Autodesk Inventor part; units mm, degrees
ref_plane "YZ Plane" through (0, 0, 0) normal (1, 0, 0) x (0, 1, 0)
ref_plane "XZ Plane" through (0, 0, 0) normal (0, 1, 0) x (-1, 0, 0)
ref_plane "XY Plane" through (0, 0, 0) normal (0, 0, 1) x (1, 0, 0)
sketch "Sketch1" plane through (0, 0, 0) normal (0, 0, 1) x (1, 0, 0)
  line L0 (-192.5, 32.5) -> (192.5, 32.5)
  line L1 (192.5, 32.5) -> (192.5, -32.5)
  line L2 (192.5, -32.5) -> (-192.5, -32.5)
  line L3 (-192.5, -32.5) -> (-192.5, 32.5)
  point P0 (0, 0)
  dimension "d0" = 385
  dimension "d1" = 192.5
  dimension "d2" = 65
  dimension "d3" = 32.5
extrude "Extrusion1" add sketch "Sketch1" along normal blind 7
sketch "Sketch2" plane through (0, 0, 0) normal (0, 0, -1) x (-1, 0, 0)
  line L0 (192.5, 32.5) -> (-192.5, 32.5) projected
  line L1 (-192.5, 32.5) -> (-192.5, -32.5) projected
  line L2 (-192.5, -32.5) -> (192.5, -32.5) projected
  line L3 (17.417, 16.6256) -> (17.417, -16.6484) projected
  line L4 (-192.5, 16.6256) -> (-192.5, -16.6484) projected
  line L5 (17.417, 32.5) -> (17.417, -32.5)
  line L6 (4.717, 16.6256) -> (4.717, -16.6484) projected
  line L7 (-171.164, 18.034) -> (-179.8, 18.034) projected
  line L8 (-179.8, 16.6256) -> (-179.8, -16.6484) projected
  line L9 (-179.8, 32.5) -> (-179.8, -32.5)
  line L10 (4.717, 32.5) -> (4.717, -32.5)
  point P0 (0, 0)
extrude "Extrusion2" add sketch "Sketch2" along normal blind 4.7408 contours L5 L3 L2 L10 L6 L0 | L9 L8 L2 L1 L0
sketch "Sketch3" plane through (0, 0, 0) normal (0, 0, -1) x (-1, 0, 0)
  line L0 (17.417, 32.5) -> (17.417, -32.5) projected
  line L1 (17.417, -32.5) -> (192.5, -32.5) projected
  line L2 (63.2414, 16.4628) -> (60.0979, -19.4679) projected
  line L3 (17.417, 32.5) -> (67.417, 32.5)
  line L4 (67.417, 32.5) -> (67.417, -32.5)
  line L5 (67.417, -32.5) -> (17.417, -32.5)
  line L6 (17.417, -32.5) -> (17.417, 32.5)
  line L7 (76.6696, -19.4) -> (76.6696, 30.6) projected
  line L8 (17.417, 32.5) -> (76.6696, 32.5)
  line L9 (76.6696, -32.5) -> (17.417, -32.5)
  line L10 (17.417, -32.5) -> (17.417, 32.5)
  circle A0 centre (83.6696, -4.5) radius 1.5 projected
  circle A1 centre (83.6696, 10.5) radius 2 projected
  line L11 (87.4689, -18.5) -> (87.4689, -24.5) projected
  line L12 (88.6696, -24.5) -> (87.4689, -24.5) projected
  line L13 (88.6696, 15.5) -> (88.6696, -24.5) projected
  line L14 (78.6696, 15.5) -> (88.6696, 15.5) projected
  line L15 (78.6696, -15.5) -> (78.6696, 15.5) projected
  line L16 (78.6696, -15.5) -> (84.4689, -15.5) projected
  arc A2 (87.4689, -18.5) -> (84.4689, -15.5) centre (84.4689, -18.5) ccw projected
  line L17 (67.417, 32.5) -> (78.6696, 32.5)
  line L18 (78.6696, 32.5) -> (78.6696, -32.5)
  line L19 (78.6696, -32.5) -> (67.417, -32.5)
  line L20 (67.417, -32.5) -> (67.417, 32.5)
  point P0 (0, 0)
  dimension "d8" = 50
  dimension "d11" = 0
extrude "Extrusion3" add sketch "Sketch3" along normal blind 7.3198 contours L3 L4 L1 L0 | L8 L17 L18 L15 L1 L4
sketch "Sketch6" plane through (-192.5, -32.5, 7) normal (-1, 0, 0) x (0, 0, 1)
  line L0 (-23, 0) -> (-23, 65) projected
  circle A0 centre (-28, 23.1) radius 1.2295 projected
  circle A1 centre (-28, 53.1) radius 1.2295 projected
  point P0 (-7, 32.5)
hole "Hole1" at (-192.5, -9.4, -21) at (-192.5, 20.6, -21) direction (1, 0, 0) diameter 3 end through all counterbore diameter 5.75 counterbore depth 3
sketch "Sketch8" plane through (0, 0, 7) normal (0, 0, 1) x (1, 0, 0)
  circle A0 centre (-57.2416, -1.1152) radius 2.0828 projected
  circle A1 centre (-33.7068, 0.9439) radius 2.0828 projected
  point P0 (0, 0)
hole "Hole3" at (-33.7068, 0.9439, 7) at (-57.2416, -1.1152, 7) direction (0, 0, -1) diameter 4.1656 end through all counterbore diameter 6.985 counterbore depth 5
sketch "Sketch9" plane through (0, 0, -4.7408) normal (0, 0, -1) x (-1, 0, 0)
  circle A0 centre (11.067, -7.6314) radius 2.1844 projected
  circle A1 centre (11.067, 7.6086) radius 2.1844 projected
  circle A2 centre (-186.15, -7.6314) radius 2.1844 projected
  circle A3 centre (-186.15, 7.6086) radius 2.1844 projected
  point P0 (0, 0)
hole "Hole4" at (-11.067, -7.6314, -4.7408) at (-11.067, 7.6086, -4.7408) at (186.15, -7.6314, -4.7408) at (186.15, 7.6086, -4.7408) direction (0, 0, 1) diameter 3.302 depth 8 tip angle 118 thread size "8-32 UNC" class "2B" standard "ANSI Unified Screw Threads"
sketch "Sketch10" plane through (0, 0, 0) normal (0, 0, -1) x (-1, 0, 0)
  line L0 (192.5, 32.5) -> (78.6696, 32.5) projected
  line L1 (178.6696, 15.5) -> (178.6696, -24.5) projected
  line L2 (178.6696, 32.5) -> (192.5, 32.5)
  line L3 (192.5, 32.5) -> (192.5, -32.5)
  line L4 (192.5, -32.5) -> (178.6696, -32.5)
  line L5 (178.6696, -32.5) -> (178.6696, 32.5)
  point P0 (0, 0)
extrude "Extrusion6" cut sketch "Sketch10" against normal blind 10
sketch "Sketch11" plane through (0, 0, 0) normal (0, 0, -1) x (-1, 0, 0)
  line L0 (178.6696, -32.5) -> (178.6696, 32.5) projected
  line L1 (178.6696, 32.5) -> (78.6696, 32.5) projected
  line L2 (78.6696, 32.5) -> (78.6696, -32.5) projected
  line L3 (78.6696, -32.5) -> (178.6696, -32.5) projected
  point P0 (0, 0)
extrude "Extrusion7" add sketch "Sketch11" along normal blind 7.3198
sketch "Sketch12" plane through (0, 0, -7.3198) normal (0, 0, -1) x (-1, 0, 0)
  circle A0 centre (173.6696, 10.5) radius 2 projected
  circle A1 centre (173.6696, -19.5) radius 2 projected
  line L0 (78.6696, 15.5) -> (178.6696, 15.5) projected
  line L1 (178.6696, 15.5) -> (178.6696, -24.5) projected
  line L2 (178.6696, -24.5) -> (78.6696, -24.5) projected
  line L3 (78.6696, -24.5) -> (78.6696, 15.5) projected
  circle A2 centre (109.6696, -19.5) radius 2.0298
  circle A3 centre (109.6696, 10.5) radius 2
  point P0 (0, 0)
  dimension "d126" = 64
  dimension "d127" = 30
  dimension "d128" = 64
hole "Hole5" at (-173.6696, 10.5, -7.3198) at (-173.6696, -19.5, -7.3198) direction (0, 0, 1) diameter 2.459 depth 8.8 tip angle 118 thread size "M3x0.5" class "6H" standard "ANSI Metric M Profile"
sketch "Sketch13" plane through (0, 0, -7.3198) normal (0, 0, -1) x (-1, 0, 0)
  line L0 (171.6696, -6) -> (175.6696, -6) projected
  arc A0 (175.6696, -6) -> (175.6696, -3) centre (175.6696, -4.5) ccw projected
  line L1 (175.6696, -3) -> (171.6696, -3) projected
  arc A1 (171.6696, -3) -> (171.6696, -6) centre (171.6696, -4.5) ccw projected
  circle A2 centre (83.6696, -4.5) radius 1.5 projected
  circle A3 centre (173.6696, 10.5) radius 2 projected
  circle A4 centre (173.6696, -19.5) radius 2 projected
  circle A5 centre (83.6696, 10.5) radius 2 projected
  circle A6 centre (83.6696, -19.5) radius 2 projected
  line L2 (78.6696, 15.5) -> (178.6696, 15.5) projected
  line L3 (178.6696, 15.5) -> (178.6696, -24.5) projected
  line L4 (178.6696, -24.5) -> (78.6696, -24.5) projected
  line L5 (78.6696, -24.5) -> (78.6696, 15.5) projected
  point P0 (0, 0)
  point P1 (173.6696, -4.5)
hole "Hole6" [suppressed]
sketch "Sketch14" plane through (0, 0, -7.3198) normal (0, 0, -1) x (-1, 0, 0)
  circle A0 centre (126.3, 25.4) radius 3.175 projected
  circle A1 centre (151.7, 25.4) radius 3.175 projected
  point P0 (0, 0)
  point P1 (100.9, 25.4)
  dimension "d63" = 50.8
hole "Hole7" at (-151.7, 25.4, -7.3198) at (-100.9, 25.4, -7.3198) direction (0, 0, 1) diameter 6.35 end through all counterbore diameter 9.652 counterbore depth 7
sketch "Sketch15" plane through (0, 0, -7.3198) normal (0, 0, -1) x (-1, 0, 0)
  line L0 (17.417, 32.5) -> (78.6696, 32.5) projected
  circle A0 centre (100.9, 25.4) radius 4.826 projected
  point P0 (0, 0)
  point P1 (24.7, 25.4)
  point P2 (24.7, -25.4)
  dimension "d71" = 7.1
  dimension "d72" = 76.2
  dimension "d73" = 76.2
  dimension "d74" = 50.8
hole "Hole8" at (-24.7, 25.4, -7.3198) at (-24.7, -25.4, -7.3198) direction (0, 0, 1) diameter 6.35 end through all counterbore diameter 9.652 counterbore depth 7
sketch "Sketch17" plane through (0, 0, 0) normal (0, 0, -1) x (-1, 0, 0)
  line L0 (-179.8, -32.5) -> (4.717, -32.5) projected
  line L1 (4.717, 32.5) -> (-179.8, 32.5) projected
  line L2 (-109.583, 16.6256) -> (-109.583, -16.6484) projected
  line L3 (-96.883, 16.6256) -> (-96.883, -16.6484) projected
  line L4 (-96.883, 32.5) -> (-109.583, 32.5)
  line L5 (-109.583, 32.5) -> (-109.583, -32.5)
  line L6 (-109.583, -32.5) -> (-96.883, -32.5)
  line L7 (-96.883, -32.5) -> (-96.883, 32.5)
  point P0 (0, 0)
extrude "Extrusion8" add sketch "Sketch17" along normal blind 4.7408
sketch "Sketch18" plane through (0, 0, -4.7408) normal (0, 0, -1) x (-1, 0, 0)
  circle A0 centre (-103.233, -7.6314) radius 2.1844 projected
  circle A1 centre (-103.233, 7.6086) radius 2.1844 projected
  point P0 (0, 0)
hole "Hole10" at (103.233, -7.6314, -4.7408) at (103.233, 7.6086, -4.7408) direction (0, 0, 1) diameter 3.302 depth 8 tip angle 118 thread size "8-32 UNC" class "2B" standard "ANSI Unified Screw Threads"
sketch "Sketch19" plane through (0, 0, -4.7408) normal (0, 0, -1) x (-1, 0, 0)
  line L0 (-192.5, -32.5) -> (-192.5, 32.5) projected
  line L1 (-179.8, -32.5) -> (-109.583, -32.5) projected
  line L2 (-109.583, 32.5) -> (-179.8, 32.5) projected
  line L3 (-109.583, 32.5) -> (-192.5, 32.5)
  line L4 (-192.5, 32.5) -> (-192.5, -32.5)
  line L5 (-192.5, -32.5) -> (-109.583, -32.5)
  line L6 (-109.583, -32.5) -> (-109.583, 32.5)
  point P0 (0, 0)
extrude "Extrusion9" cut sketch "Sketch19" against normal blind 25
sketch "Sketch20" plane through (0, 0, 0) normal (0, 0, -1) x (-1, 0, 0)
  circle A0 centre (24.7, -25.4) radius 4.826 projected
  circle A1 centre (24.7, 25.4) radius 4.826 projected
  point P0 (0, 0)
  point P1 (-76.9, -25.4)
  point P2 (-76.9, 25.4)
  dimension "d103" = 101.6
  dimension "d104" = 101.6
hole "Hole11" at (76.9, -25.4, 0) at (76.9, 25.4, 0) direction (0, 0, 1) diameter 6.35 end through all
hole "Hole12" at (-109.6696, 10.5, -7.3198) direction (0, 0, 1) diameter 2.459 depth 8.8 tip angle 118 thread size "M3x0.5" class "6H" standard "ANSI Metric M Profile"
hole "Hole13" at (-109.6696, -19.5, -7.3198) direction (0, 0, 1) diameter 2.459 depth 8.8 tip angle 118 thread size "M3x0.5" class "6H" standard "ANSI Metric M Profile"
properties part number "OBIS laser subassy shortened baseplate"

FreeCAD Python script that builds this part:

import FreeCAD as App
import Part
import Sketcher

doc = App.newDocument("Part")
params = doc.addObject("Spreadsheet::Sheet", "Params")
for row, (alias, value) in enumerate([
    ("sketch1_width", "385 mm"),
    ("sketch1_height", "65 mm"),
    ("pad1_length", "7 mm"),
    ("sketch2_height", "65 mm"),
    ("sketch2_width", "12.7 mm"),
    ("pad2_length", "4.7408 mm"),
    ("sketch3_height", "65 mm"),
    ("pad3_length", "7.3198 mm"),
    ("sketch4_diameter", "3 mm"),
    ("hole_diameter", "3 mm"),
    ("hole_cbore_diameter", "5.75 mm"),
    ("hole_cbore_depth", "3 mm"),
    ("hole2_diameter", "4.1656 mm"),
    ("hole2_cbore_diameter", "6.985 mm"),
    ("hole2_cbore_depth", "5 mm"),
    ("hole3_diameter", "3.302 mm"),
    ("hole3_depth", "8 mm"),
    ("sketch7_height", "65 mm"),
    ("pocket1_length", "10 mm"),
    ("sketch8_width", "100 mm"),
    ("sketch8_height", "65 mm"),
    ("pad4_length", "7.3198 mm"),
    ("hole4_diameter", "2.459 mm"),
    ("hole4_depth", "8.8 mm"),
    ("sketch10_diameter", "6.35 mm"),
    ("hole5_diameter", "6.35 mm"),
    ("hole5_cbore_diameter", "9.652 mm"),
    ("hole5_cbore_depth", "7 mm"),
    ("sketch11_diameter", "6.35 mm"),
    ("hole6_diameter", "6.35 mm"),
    ("hole6_cbore_diameter", "9.652 mm"),
    ("hole6_cbore_depth", "7 mm"),
    ("sketch12_height", "65 mm"),
    ("sketch12_width", "12.7 mm"),
    ("pad5_length", "4.7408 mm"),
    ("hole7_diameter", "3.302 mm"),
    ("hole7_depth", "8 mm"),
    ("sketch14_height", "65 mm"),
    ("pocket2_length", "25 mm"),
    ("sketch15_diameter", "6.35 mm"),
    ("hole8_diameter", "6.35 mm"),
    ("hole9_diameter", "2.459 mm"),
    ("hole9_depth", "8.8 mm"),
    ("hole10_diameter", "2.459 mm"),
    ("hole10_depth", "8.8 mm"),
], start=1):
    params.set(f"A{row}", alias)
    params.set(f"B{row}", "=" + value)
    params.setAlias(f"B{row}", alias)

body = doc.addObject("PartDesign::Body", "Body")

# Sketch on XY plane
sketch1 = body.newObject("Sketcher::SketchObject", "Sketch")
sketch1.AttachmentSupport = (doc.getObject("XY_Plane"), [""])
sketch1.MapMode = "FlatFace"
sketch1.addGeometry([
    Part.LineSegment(App.Vector(192, 32, 0), App.Vector(-192, 32, 0)),
    Part.LineSegment(App.Vector(-192, 32, 0), App.Vector(-192, -32, 0)),
    Part.LineSegment(App.Vector(-192, -32, 0), App.Vector(192, -32, 0)),
    Part.LineSegment(App.Vector(192, -32, 0), App.Vector(192, 32, 0)),
], False)
sketch1.addConstraint([
    Sketcher.Constraint("Coincident", 0, 2, 1, 1),
    Sketcher.Constraint("Coincident", 1, 2, 2, 1),
    Sketcher.Constraint("Coincident", 2, 2, 3, 1),
    Sketcher.Constraint("Coincident", 3, 2, 0, 1),
    Sketcher.Constraint("Horizontal", 0),
    Sketcher.Constraint("Vertical", 1),
    Sketcher.Constraint("Horizontal", 2),
    Sketcher.Constraint("Vertical", 3),
    Sketcher.Constraint("Symmetric", 0, 2, 2, 2, -1, 1),
    Sketcher.Constraint("DistanceX", 0, 2, 0, 1, 385.0),
    Sketcher.Constraint("DistanceY", 1, 2, 1, 1, 65.0),
])
sketch1.setExpression("Constraints[9]", "Params.sketch1_width")
sketch1.setExpression("Constraints[10]", "Params.sketch1_height")
pad1 = body.newObject("PartDesign::Pad", "Pad")
pad1.Profile = sketch1
pad1.setExpression("Length", "Params.pad1_length")

# Sketch on XY plane
sketch2 = body.newObject("Sketcher::SketchObject", "Sketch001")
sketch2.AttachmentSupport = (doc.getObject("XY_Plane"), [""])
sketch2.MapMode = "FlatFace"
sketch2.addGeometry([
    Part.LineSegment(App.Vector(-17, -32, 0), App.Vector(-17, 32, 0)),  # 0
    Part.LineSegment(App.Vector(-17, 32, 0), App.Vector(-5, 32, 0)),  # 1
    Part.LineSegment(App.Vector(-5, 32, 0), App.Vector(-5, -32, 0)),  # 2
    Part.LineSegment(App.Vector(-5, -32, 0), App.Vector(-17, -32, 0)),  # 3
    Part.LineSegment(App.Vector(180, -32, 0), App.Vector(180, 32, 0)),  # 4
    Part.LineSegment(App.Vector(180, 32, 0), App.Vector(192, 32, 0)),  # 5
    Part.LineSegment(App.Vector(192, 32, 0), App.Vector(192, -32, 0)),  # 6
    Part.LineSegment(App.Vector(192, -32, 0), App.Vector(180, -32, 0)),  # 7
], False)
sketch2.addConstraint([
    Sketcher.Constraint("Coincident", 0, 2, 1, 1),
    Sketcher.Constraint("Coincident", 1, 2, 2, 1),
    Sketcher.Constraint("Coincident", 2, 2, 3, 1),
    Sketcher.Constraint("Coincident", 3, 2, 0, 1),
    Sketcher.Constraint("Coincident", 4, 2, 5, 1),
    Sketcher.Constraint("Coincident", 5, 2, 6, 1),
    Sketcher.Constraint("Coincident", 6, 2, 7, 1),
    Sketcher.Constraint("Coincident", 7, 2, 4, 1),
    Sketcher.Constraint("Vertical", 0),
    Sketcher.Constraint("Horizontal", 1),
    Sketcher.Constraint("Vertical", 2),
    Sketcher.Constraint("Horizontal", 3),
    Sketcher.Constraint("Vertical", 4),
    Sketcher.Constraint("Horizontal", 5),
    Sketcher.Constraint("Vertical", 6),
    Sketcher.Constraint("Horizontal", 7),
    Sketcher.Constraint("Horizontal", 1, 2, 4, 2),
    Sketcher.Constraint("Horizontal", 3, 2, 6, 2),
    Sketcher.Constraint("Equal", 3, 5),
    Sketcher.Constraint("DistanceY", 0, 1, 0, 2, 65.0),
    Sketcher.Constraint("DistanceX", 1, 1, 1, 2, 12.7),
    Sketcher.Constraint("DistanceY", -1, 1, 0, 2, 32.5),
    Sketcher.Constraint("DistanceX", -1, 1, 4, 2, 179.8),
    Sketcher.Constraint("DistanceX", 0, 2, -1, 1, 17.417),
])
sketch2.setExpression("Constraints[19]", "Params.sketch2_height")
sketch2.setExpression("Constraints[20]", "Params.sketch2_width")
pad2 = body.newObject("PartDesign::Pad", "Pad001")
pad2.Profile = sketch2
pad2.setExpression("Length", "Params.pad2_length")
pad2.Reversed = True

# Sketch on XY plane
sketch3 = body.newObject("Sketcher::SketchObject", "Sketch002")
sketch3.AttachmentSupport = (doc.getObject("XY_Plane"), [""])
sketch3.MapMode = "FlatFace"
sketch3.addGeometry([
    Part.LineSegment(App.Vector(-17, 32, 0), App.Vector(-17, -32, 0)),
    Part.LineSegment(App.Vector(-17, -32, 0), App.Vector(-79, -32, 0)),
    Part.LineSegment(App.Vector(-79, -32, 0), App.Vector(-79, 32, 0)),
    Part.LineSegment(App.Vector(-79, 32, 0), App.Vector(-17, 32, 0)),
], False)
sketch3.addConstraint([
    Sketcher.Constraint("Coincident", 0, 2, 1, 1),
    Sketcher.Constraint("Coincident", 1, 2, 2, 1),
    Sketcher.Constraint("Coincident", 2, 2, 3, 1),
    Sketcher.Constraint("Coincident", 3, 2, 0, 1),
    Sketcher.Constraint("Vertical", 0),
    Sketcher.Constraint("Horizontal", 1),
    Sketcher.Constraint("Vertical", 2),
    Sketcher.Constraint("Horizontal", 3),
    Sketcher.Constraint("DistanceY", 0, 2, 0, 1, 65.0),
    Sketcher.Constraint("DistanceY", 0, 2, -1, 1, 32.5),
    Sketcher.Constraint("DistanceX", 1, 2, 1, 1, 61.2526),
    Sketcher.Constraint("DistanceX", 0, 2, -1, 1, 17.417),
])
sketch3.setExpression("Constraints[8]", "Params.sketch3_height")
pad3 = body.newObject("PartDesign::Pad", "Pad002")
pad3.Profile = sketch3
pad3.setExpression("Length", "Params.pad3_length")
pad3.Reversed = True

# Sketch on YZ plane
sketch4 = body.newObject("Sketcher::SketchObject", "Sketch003")
sketch4.AttachmentSupport = (doc.getObject("YZ_Plane"), [""])
sketch4.MapMode = "FlatFace"
sketch4.AttachmentOffset = App.Placement(App.Vector(0, 0, -192.5), App.Rotation())
sketch4.addGeometry([
    Part.Circle(App.Vector(-9.4, -21, 0), App.Vector(0, 0, 1), 1.5),
    Part.Circle(App.Vector(20.6, -21, 0), App.Vector(0, 0, 1), 1.5),
], False)
sketch4.addConstraint([
    Sketcher.Constraint("Equal", 0, 1),
    Sketcher.Constraint("Horizontal", 0, 3, 1, 3),
    Sketcher.Constraint("Diameter", 0, 3.0),
    Sketcher.Constraint("DistanceY", 0, 3, -1, 1, 21.0),
    Sketcher.Constraint("DistanceX", 0, 3, 1, 3, 30.0),
    Sketcher.Constraint("DistanceX", 0, 3, -1, 1, 9.4),
])
sketch4.setExpression("Constraints[2]", "Params.sketch4_diameter")
doc.recompute()
hole = body.newObject("PartDesign::Hole", "Hole")
hole.Profile = sketch4
hole.ThreadType = "None"
hole.setExpression("Diameter", "Params.hole_diameter")
hole.DepthType = "ThroughAll"
hole.HoleCutType = "Counterbore"
hole.setExpression("HoleCutDiameter", "Params.hole_cbore_diameter")
hole.setExpression("HoleCutDepth", "Params.hole_cbore_depth")
hole.Reversed = True

# Sketch on XY plane
sketch5 = body.newObject("Sketcher::SketchObject", "Sketch004")
sketch5.AttachmentSupport = (doc.getObject("XY_Plane"), [""])
sketch5.MapMode = "FlatFace"
sketch5.AttachmentOffset = App.Placement(App.Vector(0, 0, 7), App.Rotation())
sketch5.addGeometry([
    Part.Circle(App.Vector(-33.7, 0.9, 0), App.Vector(0, 0, 1), 2.1),
    Part.Circle(App.Vector(-57.2, -1.1, 0), App.Vector(0, 0, 1), 2.1),
], False)
sketch5.addConstraint([
    Sketcher.Constraint("Equal", 0, 1),
    Sketcher.Constraint("Diameter", 0, 4.1656),
    Sketcher.Constraint("DistanceY", -1, 1, 0, 3, 0.944),
    Sketcher.Constraint("DistanceY", 1, 3, 0, 3, 2.059),
    Sketcher.Constraint("DistanceX", 0, 3, -1, 1, 33.7068),
    Sketcher.Constraint("DistanceX", 1, 3, -1, 1, 57.2416),
])
doc.recompute()
hole2 = body.newObject("PartDesign::Hole", "Hole001")
hole2.Profile = sketch5
hole2.ThreadType = "None"
hole2.setExpression("Diameter", "Params.hole2_diameter")
hole2.DepthType = "ThroughAll"
hole2.HoleCutType = "Counterbore"
hole2.setExpression("HoleCutDiameter", "Params.hole2_cbore_diameter")
hole2.setExpression("HoleCutDepth", "Params.hole2_cbore_depth")

# Sketch on XY plane
sketch6 = body.newObject("Sketcher::SketchObject", "Sketch005")
sketch6.AttachmentSupport = (doc.getObject("XY_Plane"), [""])
sketch6.MapMode = "FlatFace"
sketch6.AttachmentOffset = App.Placement(App.Vector(0, 0, -4.7408), App.Rotation())
sketch6.addGeometry([
    Part.Circle(App.Vector(-11.1, -7.6, 0), App.Vector(0, 0, 1), 1.7),
    Part.Circle(App.Vector(-11.1, 7.6, 0), App.Vector(0, 0, 1), 1.7),
    Part.Circle(App.Vector(186.2, -7.6, 0), App.Vector(0, 0, 1), 1.7),
    Part.Circle(App.Vector(186.2, 7.6, 0), App.Vector(0, 0, 1), 1.7),
], False)
sketch6.addConstraint([
    Sketcher.Constraint("Equal", 0, 1),
    Sketcher.Constraint("Equal", 1, 2),
    Sketcher.Constraint("Equal", 2, 3),
    Sketcher.Constraint("Horizontal", 0, 3, 2, 3),
    Sketcher.Constraint("Horizontal", 1, 3, 3, 3),
    Sketcher.Constraint("Vertical", 0, 3, 1, 3),
    Sketcher.Constraint("Vertical", 2, 3, 3, 3),
    Sketcher.Constraint("Diameter", 0, 3.302),
    Sketcher.Constraint("DistanceX", -1, 1, 2, 3, 186.15),
    Sketcher.Constraint("DistanceY", 0, 3, 1, 3, 15.24),
    Sketcher.Constraint("DistanceX", 0, 3, -1, 1, 11.067),
    Sketcher.Constraint("DistanceY", 0, 3, -1, 1, 7.6314),
])
doc.recompute()
hole3 = body.newObject("PartDesign::Hole", "Hole002")
hole3.Profile = sketch6
hole3.ThreadType = "None"
hole3.setExpression("Diameter", "Params.hole3_diameter")
hole3.DepthType = "Dimension"
hole3.setExpression("Depth", "Params.hole3_depth")
hole3.DrillPoint = "Angled"
hole3.DrillPointAngle = 118
hole3.Reversed = True

# Sketch on XY plane
sketch7 = body.newObject("Sketcher::SketchObject", "Sketch006")
sketch7.AttachmentSupport = (doc.getObject("XY_Plane"), [""])
sketch7.MapMode = "FlatFace"
sketch7.addGeometry([
    Part.LineSegment(App.Vector(-192, -32, 0), App.Vector(-192, 32, 0)),
    Part.LineSegment(App.Vector(-192, 32, 0), App.Vector(-179, 32, 0)),
    Part.LineSegment(App.Vector(-179, 32, 0), App.Vector(-179, -32, 0)),
    Part.LineSegment(App.Vector(-179, -32, 0), App.Vector(-192, -32, 0)),
], False)
sketch7.addConstraint([
    Sketcher.Constraint("Coincident", 0, 2, 1, 1),
    Sketcher.Constraint("Coincident", 1, 2, 2, 1),
    Sketcher.Constraint("Coincident", 2, 2, 3, 1),
    Sketcher.Constraint("Coincident", 3, 2, 0, 1),
    Sketcher.Constraint("Vertical", 0),
    Sketcher.Constraint("Horizontal", 1),
    Sketcher.Constraint("Vertical", 2),
    Sketcher.Constraint("Horizontal", 3),
    Sketcher.Constraint("DistanceY", 0, 1, 0, 2, 65.0),
    Sketcher.Constraint("DistanceX", 0, 2, -1, 1, 192.5),
    Sketcher.Constraint("DistanceY", -1, 1, 0, 2, 32.5),
    Sketcher.Constraint("DistanceX", 1, 1, 1, 2, 13.8304),
])
sketch7.setExpression("Constraints[8]", "Params.sketch7_height")
pocket1 = body.newObject("PartDesign::Pocket", "Pocket")
pocket1.Profile = sketch7
pocket1.setExpression("Length", "Params.pocket1_length")
pocket1.Reversed = True

# Sketch on XY plane
sketch8 = body.newObject("Sketcher::SketchObject", "Sketch007")
sketch8.AttachmentSupport = (doc.getObject("XY_Plane"), [""])
sketch8.MapMode = "FlatFace"
sketch8.addGeometry([
    Part.LineSegment(App.Vector(-79, -32, 0), App.Vector(-179, -32, 0)),
    Part.LineSegment(App.Vector(-179, -32, 0), App.Vector(-179, 32, 0)),
    Part.LineSegment(App.Vector(-179, 32, 0), App.Vector(-79, 32, 0)),
    Part.LineSegment(App.Vector(-79, 32, 0), App.Vector(-79, -32, 0)),
], False)
sketch8.addConstraint([
    Sketcher.Constraint("Coincident", 0, 2, 1, 1),
    Sketcher.Constraint("Coincident", 1, 2, 2, 1),
    Sketcher.Constraint("Coincident", 2, 2, 3, 1),
    Sketcher.Constraint("Coincident", 3, 2, 0, 1),
    Sketcher.Constraint("Horizontal", 0),
    Sketcher.Constraint("Vertical", 1),
    Sketcher.Constraint("Horizontal", 2),
    Sketcher.Constraint("Vertical", 3),
    Sketcher.Constraint("DistanceX", 0, 2, 0, 1, 100.0),
    Sketcher.Constraint("DistanceY", 1, 1, 1, 2, 65.0),
    Sketcher.Constraint("DistanceY", 0, 2, -1, 1, 32.5),
    Sketcher.Constraint("DistanceX", 0, 2, -1, 1, 178.6696),
])
sketch8.setExpression("Constraints[8]", "Params.sketch8_width")
sketch8.setExpression("Constraints[9]", "Params.sketch8_height")
pad4 = body.newObject("PartDesign::Pad", "Pad003")
pad4.Profile = sketch8
pad4.setExpression("Length", "Params.pad4_length")
pad4.Reversed = True

# Sketch on XY plane
sketch9 = body.newObject("Sketcher::SketchObject", "Sketch008")
sketch9.AttachmentSupport = (doc.getObject("XY_Plane"), [""])
sketch9.MapMode = "FlatFace"
sketch9.AttachmentOffset = App.Placement(App.Vector(0, 0, -7.3198), App.Rotation())
sketch9.addGeometry([
    Part.Circle(App.Vector(-173.7, 10.5, 0), App.Vector(0, 0, 1), 1.2),
    Part.Circle(App.Vector(-173.7, -19.5, 0), App.Vector(0, 0, 1), 1.2),
], False)
sketch9.addConstraint([
    Sketcher.Constraint("Equal", 0, 1),
    Sketcher.Constraint("Vertical", 0, 3, 1, 3),
    Sketcher.Constraint("Diameter", 0, 2.459),
    Sketcher.Constraint("DistanceY", 1, 3, 0, 3, 30.0),
    Sketcher.Constraint("DistanceY", -1, 1, 0, 3, 10.5),
    Sketcher.Constraint("DistanceX", 0, 3, -1, 1, 173.6696),
])
doc.recompute()
hole4 = body.newObject("PartDesign::Hole", "Hole003")
hole4.Profile = sketch9
hole4.ThreadType = "None"
hole4.setExpression("Diameter", "Params.hole4_diameter")
hole4.DepthType = "Dimension"
hole4.setExpression("Depth", "Params.hole4_depth")
hole4.DrillPoint = "Angled"
hole4.DrillPointAngle = 118
hole4.Reversed = True

# Sketch on XY plane
sketch10 = body.newObject("Sketcher::SketchObject", "Sketch009")
sketch10.AttachmentSupport = (doc.getObject("XY_Plane"), [""])
sketch10.MapMode = "FlatFace"
sketch10.AttachmentOffset = App.Placement(App.Vector(0, 0, -7.3198), App.Rotation())
sketch10.addGeometry([
    Part.Circle(App.Vector(-151.7, 25.4, 0), App.Vector(0, 0, 1), 3.2),
    Part.Circle(App.Vector(-100.9, 25.4, 0), App.Vector(0, 0, 1), 3.2),
], False)
sketch10.addConstraint([
    Sketcher.Constraint("Equal", 0, 1),
    Sketcher.Constraint("Horizontal", 0, 3, 1, 3),
    Sketcher.Constraint("Diameter", 0, 6.35),
    Sketcher.Constraint("DistanceX", 0, 3, -1, 1, 151.7),
    Sketcher.Constraint("DistanceY", -1, 1, 0, 3, 25.4),
    Sketcher.Constraint("DistanceX", 1, 3, -1, 1, 100.9),
])
sketch10.setExpression("Constraints[2]", "Params.sketch10_diameter")
doc.recompute()
hole5 = body.newObject("PartDesign::Hole", "Hole004")
hole5.Profile = sketch10
hole5.ThreadType = "None"
hole5.setExpression("Diameter", "Params.hole5_diameter")
hole5.DepthType = "ThroughAll"
hole5.HoleCutType = "Counterbore"
hole5.setExpression("HoleCutDiameter", "Params.hole5_cbore_diameter")
hole5.setExpression("HoleCutDepth", "Params.hole5_cbore_depth")
hole5.Reversed = True

# Sketch on XY plane
sketch11 = body.newObject("Sketcher::SketchObject", "Sketch010")
sketch11.AttachmentSupport = (doc.getObject("XY_Plane"), [""])
sketch11.MapMode = "FlatFace"
sketch11.AttachmentOffset = App.Placement(App.Vector(0, 0, -7.3198), App.Rotation())
sketch11.addGeometry([
    Part.Circle(App.Vector(-24.7, 25.4, 0), App.Vector(0, 0, 1), 3.2),
    Part.Circle(App.Vector(-24.7, -25.4, 0), App.Vector(0, 0, 1), 3.2),
], False)
sketch11.addConstraint([
    Sketcher.Constraint("Equal", 0, 1),
    Sketcher.Constraint("Symmetric", 0, 3, 1, 3, -1),
    Sketcher.Constraint("Diameter", 0, 6.35),
    Sketcher.Constraint("DistanceX", 0, 3, -1, 1, 24.7),
    Sketcher.Constraint("DistanceY", -1, 1, 0, 3, 25.4),
])
sketch11.setExpression("Constraints[2]", "Params.sketch11_diameter")
doc.recompute()
hole6 = body.newObject("PartDesign::Hole", "Hole005")
hole6.Profile = sketch11
hole6.ThreadType = "None"
hole6.setExpression("Diameter", "Params.hole6_diameter")
hole6.DepthType = "ThroughAll"
hole6.HoleCutType = "Counterbore"
hole6.setExpression("HoleCutDiameter", "Params.hole6_cbore_diameter")
hole6.setExpression("HoleCutDepth", "Params.hole6_cbore_depth")
hole6.Reversed = True

# Sketch on XY plane
sketch12 = body.newObject("Sketcher::SketchObject", "Sketch011")
sketch12.AttachmentSupport = (doc.getObject("XY_Plane"), [""])
sketch12.MapMode = "FlatFace"
sketch12.addGeometry([
    Part.LineSegment(App.Vector(110, 32, 0), App.Vector(110, -32, 0)),
    Part.LineSegment(App.Vector(110, -32, 0), App.Vector(97, -32, 0)),
    Part.LineSegment(App.Vector(97, -32, 0), App.Vector(97, 32, 0)),
    Part.LineSegment(App.Vector(97, 32, 0), App.Vector(110, 32, 0)),
], False)
sketch12.addConstraint([
    Sketcher.Constraint("Coincident", 0, 2, 1, 1),
    Sketcher.Constraint("Coincident", 1, 2, 2, 1),
    Sketcher.Constraint("Coincident", 2, 2, 3, 1),
    Sketcher.Constraint("Coincident", 3, 2, 0, 1),
    Sketcher.Constraint("Vertical", 0),
    Sketcher.Constraint("Horizontal", 1),
    Sketcher.Constraint("Vertical", 2),
    Sketcher.Constraint("Horizontal", 3),
    Sketcher.Constraint("DistanceY", 0, 2, 0, 1, 65.0),
    Sketcher.Constraint("DistanceX", 1, 2, 1, 1, 12.7),
    Sketcher.Constraint("DistanceY", 0, 2, -1, 1, 32.5),
    Sketcher.Constraint("DistanceX", -1, 1, 0, 2, 109.583),
])
sketch12.setExpression("Constraints[8]", "Params.sketch12_height")
sketch12.setExpression("Constraints[9]", "Params.sketch12_width")
pad5 = body.newObject("PartDesign::Pad", "Pad004")
pad5.Profile = sketch12
pad5.setExpression("Length", "Params.pad5_length")
pad5.Reversed = True

# Sketch on XY plane
sketch13 = body.newObject("Sketcher::SketchObject", "Sketch012")
sketch13.AttachmentSupport = (doc.getObject("XY_Plane"), [""])
sketch13.MapMode = "FlatFace"
sketch13.AttachmentOffset = App.Placement(App.Vector(0, 0, -4.7408), App.Rotation())
sketch13.addGeometry([
    Part.Circle(App.Vector(103.2, -7.6, 0), App.Vector(0, 0, 1), 1.7),
    Part.Circle(App.Vector(103.2, 7.6, 0), App.Vector(0, 0, 1), 1.7),
], False)
sketch13.addConstraint([
    Sketcher.Constraint("Equal", 0, 1),
    Sketcher.Constraint("Vertical", 0, 3, 1, 3),
    Sketcher.Constraint("Diameter", 0, 3.302),
    Sketcher.Constraint("DistanceY", 0, 3, 1, 3, 15.24),
    Sketcher.Constraint("DistanceX", -1, 1, 0, 3, 103.233),
    Sketcher.Constraint("DistanceY", 0, 3, -1, 1, 7.6314),
])
doc.recompute()
hole7 = body.newObject("PartDesign::Hole", "Hole006")
hole7.Profile = sketch13
hole7.ThreadType = "None"
hole7.setExpression("Diameter", "Params.hole7_diameter")
hole7.DepthType = "Dimension"
hole7.setExpression("Depth", "Params.hole7_depth")
hole7.DrillPoint = "Angled"
hole7.DrillPointAngle = 118
hole7.Reversed = True

# Sketch on XY plane
sketch14 = body.newObject("Sketcher::SketchObject", "Sketch013")
sketch14.AttachmentSupport = (doc.getObject("XY_Plane"), [""])
sketch14.MapMode = "FlatFace"
sketch14.AttachmentOffset = App.Placement(App.Vector(0, 0, -4.7408), App.Rotation())
sketch14.addGeometry([
    Part.LineSegment(App.Vector(192, 32, 0), App.Vector(192, -32, 0)),
    Part.LineSegment(App.Vector(192, -32, 0), App.Vector(110, -32, 0)),
    Part.LineSegment(App.Vector(110, -32, 0), App.Vector(110, 32, 0)),
    Part.LineSegment(App.Vector(110, 32, 0), App.Vector(192, 32, 0)),
], False)
sketch14.addConstraint([
    Sketcher.Constraint("Coincident", 0, 2, 1, 1),
    Sketcher.Constraint("Coincident", 1, 2, 2, 1),
    Sketcher.Constraint("Coincident", 2, 2, 3, 1),
    Sketcher.Constraint("Coincident", 3, 2, 0, 1),
    Sketcher.Constraint("Vertical", 0),
    Sketcher.Constraint("Horizontal", 1),
    Sketcher.Constraint("Vertical", 2),
    Sketcher.Constraint("Horizontal", 3),
    Sketcher.Constraint("DistanceY", 0, 2, 0, 1, 65.0),
    Sketcher.Constraint("DistanceX", -1, 1, 0, 2, 192.5),
    Sketcher.Constraint("DistanceY", 0, 2, -1, 1, 32.5),
    Sketcher.Constraint("DistanceX", 1, 2, 1, 1, 82.917),
])
sketch14.setExpression("Constraints[8]", "Params.sketch14_height")
pocket2 = body.newObject("PartDesign::Pocket", "Pocket001")
pocket2.Profile = sketch14
pocket2.setExpression("Length", "Params.pocket2_length")
pocket2.Reversed = True

# Sketch on XY plane
sketch15 = body.newObject("Sketcher::SketchObject", "Sketch014")
sketch15.AttachmentSupport = (doc.getObject("XY_Plane"), [""])
sketch15.MapMode = "FlatFace"
sketch15.addGeometry([
    Part.Circle(App.Vector(76.9, -25.4, 0), App.Vector(0, 0, 1), 3.2),
    Part.Circle(App.Vector(76.9, 25.4, 0), App.Vector(0, 0, 1), 3.2),
], False)
sketch15.addConstraint([
    Sketcher.Constraint("Equal", 0, 1),
    Sketcher.Constraint("Symmetric", 0, 3, 1, 3, -1),
    Sketcher.Constraint("Diameter", 0, 6.35),
    Sketcher.Constraint("DistanceX", -1, 1, 0, 3, 76.9),
    Sketcher.Constraint("DistanceY", 0, 3, -1, 1, 25.4),
])
sketch15.setExpression("Constraints[2]", "Params.sketch15_diameter")
doc.recompute()
hole8 = body.newObject("PartDesign::Hole", "Hole007")
hole8.Profile = sketch15
hole8.ThreadType = "None"
hole8.setExpression("Diameter", "Params.hole8_diameter")
hole8.DepthType = "ThroughAll"
hole8.Reversed = True

# Sketch on XY plane
sketch16 = body.newObject("Sketcher::SketchObject", "Sketch015")
sketch16.AttachmentSupport = (doc.getObject("XY_Plane"), [""])
sketch16.MapMode = "FlatFace"
sketch16.AttachmentOffset = App.Placement(App.Vector(0, 0, -7.3198), App.Rotation())
sketch16.addGeometry(Part.Circle(App.Vector(-109.7, 10.5, 0), App.Vector(0, 0, 1), 1.2), False)
sketch16.addConstraint([
    Sketcher.Constraint("Diameter", 0, 2.459),
    Sketcher.Constraint("DistanceY", -1, 1, 0, 3, 10.5),
    Sketcher.Constraint("DistanceX", 0, 3, -1, 1, 109.6696),
])
doc.recompute()
hole9 = body.newObject("PartDesign::Hole", "Hole008")
hole9.Profile = sketch16
hole9.ThreadType = "None"
hole9.setExpression("Diameter", "Params.hole9_diameter")
hole9.DepthType = "Dimension"
hole9.setExpression("Depth", "Params.hole9_depth")
hole9.DrillPoint = "Angled"
hole9.DrillPointAngle = 118
hole9.Reversed = True

# Sketch on XY plane
sketch17 = body.newObject("Sketcher::SketchObject", "Sketch016")
sketch17.AttachmentSupport = (doc.getObject("XY_Plane"), [""])
sketch17.MapMode = "FlatFace"
sketch17.AttachmentOffset = App.Placement(App.Vector(0, 0, -7.3198), App.Rotation())
sketch17.addGeometry(Part.Circle(App.Vector(-109.7, -19.5, 0), App.Vector(0, 0, 1), 1.2), False)
sketch17.addConstraint([
    Sketcher.Constraint("Diameter", 0, 2.459),
    Sketcher.Constraint("DistanceY", 0, 3, -1, 1, 19.5),
    Sketcher.Constraint("DistanceX", 0, 3, -1, 1, 109.6696),
])
doc.recompute()
hole10 = body.newObject("PartDesign::Hole", "Hole009")
hole10.Profile = sketch17
hole10.ThreadType = "None"
hole10.setExpression("Diameter", "Params.hole10_diameter")
hole10.DepthType = "Dimension"
hole10.setExpression("Depth", "Params.hole10_depth")
hole10.DrillPoint = "Angled"
hole10.DrillPointAngle = 118
hole10.Reversed = True

doc.recompute()
